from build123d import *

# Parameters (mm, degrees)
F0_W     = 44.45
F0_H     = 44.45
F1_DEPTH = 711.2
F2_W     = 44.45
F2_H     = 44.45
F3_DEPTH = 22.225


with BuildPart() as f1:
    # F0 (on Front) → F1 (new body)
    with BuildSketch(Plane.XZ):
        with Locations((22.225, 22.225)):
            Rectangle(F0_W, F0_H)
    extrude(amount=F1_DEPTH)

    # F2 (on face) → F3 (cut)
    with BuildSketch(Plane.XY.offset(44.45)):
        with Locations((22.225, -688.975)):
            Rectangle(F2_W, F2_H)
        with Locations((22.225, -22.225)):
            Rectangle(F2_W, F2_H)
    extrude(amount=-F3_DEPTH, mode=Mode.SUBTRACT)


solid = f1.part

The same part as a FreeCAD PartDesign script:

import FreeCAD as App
import Part
import Sketcher
Q = App.Units.Quantity


def add_polygon(sketch, points):
    """Adds a closed chain of lines whose ends are joined by coincident constraints."""
    first, n = sketch.GeometryCount, len(points)
    for a, b in zip(points, points[1:] + points[:1]):
        sketch.addGeometry(Part.LineSegment(App.Vector(*a, 0), App.Vector(*b, 0)), False)
    for i in range(n):
        sketch.addConstraint(Sketcher.Constraint("Coincident", first + i, 2, first + (i + 1) % n, 1))

doc = App.newDocument("Part")
body = doc.addObject("PartDesign::Body", "Body")

# Sketch on XZ plane
sketch1 = body.newObject("Sketcher::SketchObject", "Sketch")
sketch1.AttachmentSupport = (doc.getObject("XZ_Plane"), [""])
sketch1.MapMode = "FlatFace"
add_polygon(sketch1, [(0, 44), (0, 0), (44, 0), (44, 44)])  # lines 0-3
sketch1.addConstraint([
    Sketcher.Constraint("Vertical", 0),
    Sketcher.Constraint("Horizontal", 1),
    Sketcher.Constraint("Vertical", 2),
    Sketcher.Constraint("Horizontal", 3),
    Sketcher.Constraint("Coincident", 0, 2, -1, 1),
    Sketcher.Constraint("Equal", 3, 0),
    Sketcher.Constraint("DistanceX", 1, 1, 1, 2, Q("1.75 in")),
])
pad1 = body.newObject("PartDesign::Pad", "Pad")
pad1.Profile = sketch1
pad1.Length = Q("28 in")

# Sketch on XY plane
sketch2 = body.newObject("Sketcher::SketchObject", "Sketch001")
sketch2.AttachmentSupport = (doc.getObject("XY_Plane"), [""])
sketch2.MapMode = "FlatFace"
sketch2.AttachmentOffset = App.Placement(App.Vector(0, 0, 1.75 * 25.4), App.Rotation())
add_polygon(sketch2, [(0, -667), (0, -711), (44, -711), (44, -667)])  # lines 0-3
add_polygon(sketch2, [(0, 0), (0, -44), (44, -44), (44, 0)])  # lines 4-7
sketch2.addConstraint([
    Sketcher.Constraint("Vertical", 0),
    Sketcher.Constraint("Horizontal", 1),
    Sketcher.Constraint("Vertical", 2),
    Sketcher.Constraint("Horizontal", 3),
    Sketcher.Constraint("Vertical", 4),
    Sketcher.Constraint("Horizontal", 5),
    Sketcher.Constraint("Vertical", 6),
    Sketcher.Constraint("Horizontal", 7),
    Sketcher.Constraint("Coincident", 7, 2, -1, 1),
    Sketcher.Constraint("PointOnObject", 0, 2, -2),
    Sketcher.Constraint("Vertical", 2, 2, 5, 2),
    Sketcher.Constraint("Equal", 7, 0),
    Sketcher.Constraint("Equal", 2, 4),
    Sketcher.Constraint("DistanceY", 0, 2, -1, 1, Q("28 in")),
    Sketcher.Constraint("DistanceX", 1, 1, 1, 2, Q("1.75 in")),
])
pocket1 = body.newObject("PartDesign::Pocket", "Pocket")
pocket1.Profile = sketch2
pocket1.Length = Q("0.875 in")

doc.recompute()
